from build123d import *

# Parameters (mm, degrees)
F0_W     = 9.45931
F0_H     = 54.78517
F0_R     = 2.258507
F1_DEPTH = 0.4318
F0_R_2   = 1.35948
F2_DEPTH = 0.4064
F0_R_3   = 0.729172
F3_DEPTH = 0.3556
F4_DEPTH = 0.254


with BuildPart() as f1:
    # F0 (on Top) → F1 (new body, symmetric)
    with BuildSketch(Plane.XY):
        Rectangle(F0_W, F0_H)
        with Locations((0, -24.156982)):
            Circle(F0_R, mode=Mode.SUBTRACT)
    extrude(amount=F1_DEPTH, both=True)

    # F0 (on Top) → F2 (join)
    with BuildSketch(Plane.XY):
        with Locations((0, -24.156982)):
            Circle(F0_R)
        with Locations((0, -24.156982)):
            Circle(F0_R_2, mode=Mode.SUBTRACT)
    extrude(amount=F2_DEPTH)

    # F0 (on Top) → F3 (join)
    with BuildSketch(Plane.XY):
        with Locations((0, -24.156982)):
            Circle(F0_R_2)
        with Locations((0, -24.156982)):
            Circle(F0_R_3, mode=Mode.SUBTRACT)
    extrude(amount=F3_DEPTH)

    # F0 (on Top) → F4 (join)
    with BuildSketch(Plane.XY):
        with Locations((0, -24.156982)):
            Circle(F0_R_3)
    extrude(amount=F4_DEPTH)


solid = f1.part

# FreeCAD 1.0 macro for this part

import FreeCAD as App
import Part
import Sketcher

V = App.Vector
Q = App.Units.Quantity

doc = App.newDocument("Part")
body = doc.addObject("PartDesign::Body", "Body")

# Sketch on XY plane
sketch1 = body.newObject("Sketcher::SketchObject", "Sketch")
sketch1.AttachmentSupport = (doc.getObject("XY_Plane"), [""])
sketch1.MapMode = "FlatFace"
sketch1.addGeometry([
    Part.LineSegment(V(-4.7, 27.4, 0), V(-4.7, -27.4, 0)),  # 0
    Part.LineSegment(V(-4.7, -27.4, 0), V(4.7, -27.4, 0)),  # 1
    Part.LineSegment(V(4.7, -27.4, 0), V(4.7, 27.4, 0)),  # 2
    Part.LineSegment(V(4.7, 27.4, 0), V(-4.7, 27.4, 0)),  # 3
    Part.Circle(V(0, -24.2, 0), V(0, 0, 1), 2.3),  # 4
], False)
sketch1.addConstraint([
    Sketcher.Constraint("Coincident", 0, 2, 1, 1),
    Sketcher.Constraint("Coincident", 1, 2, 2, 1),
    Sketcher.Constraint("Coincident", 2, 2, 3, 1),
    Sketcher.Constraint("Coincident", 3, 2, 0, 1),
    Sketcher.Constraint("Vertical", 0),
    Sketcher.Constraint("Horizontal", 1),
    Sketcher.Constraint("Vertical", 2),
    Sketcher.Constraint("Horizontal", 3),
    Sketcher.Constraint("Symmetric", 0, 2, 2, 2, -1, 1),
    Sketcher.Constraint("PointOnObject", 4, 3, -2),
    Sketcher.Constraint("Diameter", 4, Q("4.517014 mm")),
    Sketcher.Constraint("DistanceX", 1, 1, 1, 2, Q("9.45931 mm")),
    Sketcher.Constraint("DistanceY", 0, 2, 0, 1, Q("54.78517 mm")),
    Sketcher.Constraint("DistanceY", 4, 3, -1, 1, Q("24.156982 mm")),
])
pad1 = body.newObject("PartDesign::Pad", "Pad")
pad1.Profile = sketch1
pad1.Length = Q("0.034 in")
pad1.Midplane = True

# Sketch on XY plane
sketch2 = body.newObject("Sketcher::SketchObject", "Sketch001")
sketch2.AttachmentSupport = (doc.getObject("XY_Plane"), [""])
sketch2.MapMode = "FlatFace"
sketch2.addGeometry([
    Part.Circle(V(0, -24.2, 0), V(0, 0, 1), 2.3),
    Part.Circle(V(0, -24.2, 0), V(0, 0, 1), 1.4),
], False)
sketch2.addConstraint([
    Sketcher.Constraint("Coincident", 1, 3, 0, 3),
    Sketcher.Constraint("PointOnObject", 0, 3, -2),
    Sketcher.Constraint("Diameter", 1, Q("2.71896 mm")),
    Sketcher.Constraint("Diameter", 0, Q("4.517014 mm")),
    Sketcher.Constraint("DistanceY", 0, 3, -1, 1, Q("24.156982 mm")),
])
pad2 = body.newObject("PartDesign::Pad", "Pad001")
pad2.Profile = sketch2
pad2.Length = Q("0.016 in")

# Sketch on XY plane
sketch3 = body.newObject("Sketcher::SketchObject", "Sketch002")
sketch3.AttachmentSupport = (doc.getObject("XY_Plane"), [""])
sketch3.MapMode = "FlatFace"
sketch3.addGeometry([
    Part.Circle(V(0, -24.2, 0), V(0, 0, 1), 1.4),
    Part.Circle(V(0, -24.2, 0), V(0, 0, 1), 0.7),
], False)
sketch3.addConstraint([
    Sketcher.Constraint("Coincident", 1, 3, 0, 3),
    Sketcher.Constraint("PointOnObject", 0, 3, -2),
    Sketcher.Constraint("Diameter", 0, Q("2.71896 mm")),
    Sketcher.Constraint("Diameter", 1, Q("1.458344 mm")),
    Sketcher.Constraint("DistanceY", 0, 3, -1, 1, Q("24.156982 mm")),
])
pad3 = body.newObject("PartDesign::Pad", "Pad002")
pad3.Profile = sketch3
pad3.Length = Q("0.014 in")

# Sketch on XY plane
sketch4 = body.newObject("Sketcher::SketchObject", "Sketch003")
sketch4.AttachmentSupport = (doc.getObject("XY_Plane"), [""])
sketch4.MapMode = "FlatFace"
sketch4.addGeometry(Part.Circle(V(0, -24.2, 0), V(0, 0, 1), 0.7), False)
sketch4.addConstraint([
    Sketcher.Constraint("PointOnObject", 0, 3, -2),
    Sketcher.Constraint("Diameter", 0, Q("1.458344 mm")),
    Sketcher.Constraint("DistanceY", 0, 3, -1, 1, Q("24.156982 mm")),
])
pad4 = body.newObject("PartDesign::Pad", "Pad003")
pad4.Profile = sketch4
pad4.Length = Q("0.01 in")

doc.recompute()
